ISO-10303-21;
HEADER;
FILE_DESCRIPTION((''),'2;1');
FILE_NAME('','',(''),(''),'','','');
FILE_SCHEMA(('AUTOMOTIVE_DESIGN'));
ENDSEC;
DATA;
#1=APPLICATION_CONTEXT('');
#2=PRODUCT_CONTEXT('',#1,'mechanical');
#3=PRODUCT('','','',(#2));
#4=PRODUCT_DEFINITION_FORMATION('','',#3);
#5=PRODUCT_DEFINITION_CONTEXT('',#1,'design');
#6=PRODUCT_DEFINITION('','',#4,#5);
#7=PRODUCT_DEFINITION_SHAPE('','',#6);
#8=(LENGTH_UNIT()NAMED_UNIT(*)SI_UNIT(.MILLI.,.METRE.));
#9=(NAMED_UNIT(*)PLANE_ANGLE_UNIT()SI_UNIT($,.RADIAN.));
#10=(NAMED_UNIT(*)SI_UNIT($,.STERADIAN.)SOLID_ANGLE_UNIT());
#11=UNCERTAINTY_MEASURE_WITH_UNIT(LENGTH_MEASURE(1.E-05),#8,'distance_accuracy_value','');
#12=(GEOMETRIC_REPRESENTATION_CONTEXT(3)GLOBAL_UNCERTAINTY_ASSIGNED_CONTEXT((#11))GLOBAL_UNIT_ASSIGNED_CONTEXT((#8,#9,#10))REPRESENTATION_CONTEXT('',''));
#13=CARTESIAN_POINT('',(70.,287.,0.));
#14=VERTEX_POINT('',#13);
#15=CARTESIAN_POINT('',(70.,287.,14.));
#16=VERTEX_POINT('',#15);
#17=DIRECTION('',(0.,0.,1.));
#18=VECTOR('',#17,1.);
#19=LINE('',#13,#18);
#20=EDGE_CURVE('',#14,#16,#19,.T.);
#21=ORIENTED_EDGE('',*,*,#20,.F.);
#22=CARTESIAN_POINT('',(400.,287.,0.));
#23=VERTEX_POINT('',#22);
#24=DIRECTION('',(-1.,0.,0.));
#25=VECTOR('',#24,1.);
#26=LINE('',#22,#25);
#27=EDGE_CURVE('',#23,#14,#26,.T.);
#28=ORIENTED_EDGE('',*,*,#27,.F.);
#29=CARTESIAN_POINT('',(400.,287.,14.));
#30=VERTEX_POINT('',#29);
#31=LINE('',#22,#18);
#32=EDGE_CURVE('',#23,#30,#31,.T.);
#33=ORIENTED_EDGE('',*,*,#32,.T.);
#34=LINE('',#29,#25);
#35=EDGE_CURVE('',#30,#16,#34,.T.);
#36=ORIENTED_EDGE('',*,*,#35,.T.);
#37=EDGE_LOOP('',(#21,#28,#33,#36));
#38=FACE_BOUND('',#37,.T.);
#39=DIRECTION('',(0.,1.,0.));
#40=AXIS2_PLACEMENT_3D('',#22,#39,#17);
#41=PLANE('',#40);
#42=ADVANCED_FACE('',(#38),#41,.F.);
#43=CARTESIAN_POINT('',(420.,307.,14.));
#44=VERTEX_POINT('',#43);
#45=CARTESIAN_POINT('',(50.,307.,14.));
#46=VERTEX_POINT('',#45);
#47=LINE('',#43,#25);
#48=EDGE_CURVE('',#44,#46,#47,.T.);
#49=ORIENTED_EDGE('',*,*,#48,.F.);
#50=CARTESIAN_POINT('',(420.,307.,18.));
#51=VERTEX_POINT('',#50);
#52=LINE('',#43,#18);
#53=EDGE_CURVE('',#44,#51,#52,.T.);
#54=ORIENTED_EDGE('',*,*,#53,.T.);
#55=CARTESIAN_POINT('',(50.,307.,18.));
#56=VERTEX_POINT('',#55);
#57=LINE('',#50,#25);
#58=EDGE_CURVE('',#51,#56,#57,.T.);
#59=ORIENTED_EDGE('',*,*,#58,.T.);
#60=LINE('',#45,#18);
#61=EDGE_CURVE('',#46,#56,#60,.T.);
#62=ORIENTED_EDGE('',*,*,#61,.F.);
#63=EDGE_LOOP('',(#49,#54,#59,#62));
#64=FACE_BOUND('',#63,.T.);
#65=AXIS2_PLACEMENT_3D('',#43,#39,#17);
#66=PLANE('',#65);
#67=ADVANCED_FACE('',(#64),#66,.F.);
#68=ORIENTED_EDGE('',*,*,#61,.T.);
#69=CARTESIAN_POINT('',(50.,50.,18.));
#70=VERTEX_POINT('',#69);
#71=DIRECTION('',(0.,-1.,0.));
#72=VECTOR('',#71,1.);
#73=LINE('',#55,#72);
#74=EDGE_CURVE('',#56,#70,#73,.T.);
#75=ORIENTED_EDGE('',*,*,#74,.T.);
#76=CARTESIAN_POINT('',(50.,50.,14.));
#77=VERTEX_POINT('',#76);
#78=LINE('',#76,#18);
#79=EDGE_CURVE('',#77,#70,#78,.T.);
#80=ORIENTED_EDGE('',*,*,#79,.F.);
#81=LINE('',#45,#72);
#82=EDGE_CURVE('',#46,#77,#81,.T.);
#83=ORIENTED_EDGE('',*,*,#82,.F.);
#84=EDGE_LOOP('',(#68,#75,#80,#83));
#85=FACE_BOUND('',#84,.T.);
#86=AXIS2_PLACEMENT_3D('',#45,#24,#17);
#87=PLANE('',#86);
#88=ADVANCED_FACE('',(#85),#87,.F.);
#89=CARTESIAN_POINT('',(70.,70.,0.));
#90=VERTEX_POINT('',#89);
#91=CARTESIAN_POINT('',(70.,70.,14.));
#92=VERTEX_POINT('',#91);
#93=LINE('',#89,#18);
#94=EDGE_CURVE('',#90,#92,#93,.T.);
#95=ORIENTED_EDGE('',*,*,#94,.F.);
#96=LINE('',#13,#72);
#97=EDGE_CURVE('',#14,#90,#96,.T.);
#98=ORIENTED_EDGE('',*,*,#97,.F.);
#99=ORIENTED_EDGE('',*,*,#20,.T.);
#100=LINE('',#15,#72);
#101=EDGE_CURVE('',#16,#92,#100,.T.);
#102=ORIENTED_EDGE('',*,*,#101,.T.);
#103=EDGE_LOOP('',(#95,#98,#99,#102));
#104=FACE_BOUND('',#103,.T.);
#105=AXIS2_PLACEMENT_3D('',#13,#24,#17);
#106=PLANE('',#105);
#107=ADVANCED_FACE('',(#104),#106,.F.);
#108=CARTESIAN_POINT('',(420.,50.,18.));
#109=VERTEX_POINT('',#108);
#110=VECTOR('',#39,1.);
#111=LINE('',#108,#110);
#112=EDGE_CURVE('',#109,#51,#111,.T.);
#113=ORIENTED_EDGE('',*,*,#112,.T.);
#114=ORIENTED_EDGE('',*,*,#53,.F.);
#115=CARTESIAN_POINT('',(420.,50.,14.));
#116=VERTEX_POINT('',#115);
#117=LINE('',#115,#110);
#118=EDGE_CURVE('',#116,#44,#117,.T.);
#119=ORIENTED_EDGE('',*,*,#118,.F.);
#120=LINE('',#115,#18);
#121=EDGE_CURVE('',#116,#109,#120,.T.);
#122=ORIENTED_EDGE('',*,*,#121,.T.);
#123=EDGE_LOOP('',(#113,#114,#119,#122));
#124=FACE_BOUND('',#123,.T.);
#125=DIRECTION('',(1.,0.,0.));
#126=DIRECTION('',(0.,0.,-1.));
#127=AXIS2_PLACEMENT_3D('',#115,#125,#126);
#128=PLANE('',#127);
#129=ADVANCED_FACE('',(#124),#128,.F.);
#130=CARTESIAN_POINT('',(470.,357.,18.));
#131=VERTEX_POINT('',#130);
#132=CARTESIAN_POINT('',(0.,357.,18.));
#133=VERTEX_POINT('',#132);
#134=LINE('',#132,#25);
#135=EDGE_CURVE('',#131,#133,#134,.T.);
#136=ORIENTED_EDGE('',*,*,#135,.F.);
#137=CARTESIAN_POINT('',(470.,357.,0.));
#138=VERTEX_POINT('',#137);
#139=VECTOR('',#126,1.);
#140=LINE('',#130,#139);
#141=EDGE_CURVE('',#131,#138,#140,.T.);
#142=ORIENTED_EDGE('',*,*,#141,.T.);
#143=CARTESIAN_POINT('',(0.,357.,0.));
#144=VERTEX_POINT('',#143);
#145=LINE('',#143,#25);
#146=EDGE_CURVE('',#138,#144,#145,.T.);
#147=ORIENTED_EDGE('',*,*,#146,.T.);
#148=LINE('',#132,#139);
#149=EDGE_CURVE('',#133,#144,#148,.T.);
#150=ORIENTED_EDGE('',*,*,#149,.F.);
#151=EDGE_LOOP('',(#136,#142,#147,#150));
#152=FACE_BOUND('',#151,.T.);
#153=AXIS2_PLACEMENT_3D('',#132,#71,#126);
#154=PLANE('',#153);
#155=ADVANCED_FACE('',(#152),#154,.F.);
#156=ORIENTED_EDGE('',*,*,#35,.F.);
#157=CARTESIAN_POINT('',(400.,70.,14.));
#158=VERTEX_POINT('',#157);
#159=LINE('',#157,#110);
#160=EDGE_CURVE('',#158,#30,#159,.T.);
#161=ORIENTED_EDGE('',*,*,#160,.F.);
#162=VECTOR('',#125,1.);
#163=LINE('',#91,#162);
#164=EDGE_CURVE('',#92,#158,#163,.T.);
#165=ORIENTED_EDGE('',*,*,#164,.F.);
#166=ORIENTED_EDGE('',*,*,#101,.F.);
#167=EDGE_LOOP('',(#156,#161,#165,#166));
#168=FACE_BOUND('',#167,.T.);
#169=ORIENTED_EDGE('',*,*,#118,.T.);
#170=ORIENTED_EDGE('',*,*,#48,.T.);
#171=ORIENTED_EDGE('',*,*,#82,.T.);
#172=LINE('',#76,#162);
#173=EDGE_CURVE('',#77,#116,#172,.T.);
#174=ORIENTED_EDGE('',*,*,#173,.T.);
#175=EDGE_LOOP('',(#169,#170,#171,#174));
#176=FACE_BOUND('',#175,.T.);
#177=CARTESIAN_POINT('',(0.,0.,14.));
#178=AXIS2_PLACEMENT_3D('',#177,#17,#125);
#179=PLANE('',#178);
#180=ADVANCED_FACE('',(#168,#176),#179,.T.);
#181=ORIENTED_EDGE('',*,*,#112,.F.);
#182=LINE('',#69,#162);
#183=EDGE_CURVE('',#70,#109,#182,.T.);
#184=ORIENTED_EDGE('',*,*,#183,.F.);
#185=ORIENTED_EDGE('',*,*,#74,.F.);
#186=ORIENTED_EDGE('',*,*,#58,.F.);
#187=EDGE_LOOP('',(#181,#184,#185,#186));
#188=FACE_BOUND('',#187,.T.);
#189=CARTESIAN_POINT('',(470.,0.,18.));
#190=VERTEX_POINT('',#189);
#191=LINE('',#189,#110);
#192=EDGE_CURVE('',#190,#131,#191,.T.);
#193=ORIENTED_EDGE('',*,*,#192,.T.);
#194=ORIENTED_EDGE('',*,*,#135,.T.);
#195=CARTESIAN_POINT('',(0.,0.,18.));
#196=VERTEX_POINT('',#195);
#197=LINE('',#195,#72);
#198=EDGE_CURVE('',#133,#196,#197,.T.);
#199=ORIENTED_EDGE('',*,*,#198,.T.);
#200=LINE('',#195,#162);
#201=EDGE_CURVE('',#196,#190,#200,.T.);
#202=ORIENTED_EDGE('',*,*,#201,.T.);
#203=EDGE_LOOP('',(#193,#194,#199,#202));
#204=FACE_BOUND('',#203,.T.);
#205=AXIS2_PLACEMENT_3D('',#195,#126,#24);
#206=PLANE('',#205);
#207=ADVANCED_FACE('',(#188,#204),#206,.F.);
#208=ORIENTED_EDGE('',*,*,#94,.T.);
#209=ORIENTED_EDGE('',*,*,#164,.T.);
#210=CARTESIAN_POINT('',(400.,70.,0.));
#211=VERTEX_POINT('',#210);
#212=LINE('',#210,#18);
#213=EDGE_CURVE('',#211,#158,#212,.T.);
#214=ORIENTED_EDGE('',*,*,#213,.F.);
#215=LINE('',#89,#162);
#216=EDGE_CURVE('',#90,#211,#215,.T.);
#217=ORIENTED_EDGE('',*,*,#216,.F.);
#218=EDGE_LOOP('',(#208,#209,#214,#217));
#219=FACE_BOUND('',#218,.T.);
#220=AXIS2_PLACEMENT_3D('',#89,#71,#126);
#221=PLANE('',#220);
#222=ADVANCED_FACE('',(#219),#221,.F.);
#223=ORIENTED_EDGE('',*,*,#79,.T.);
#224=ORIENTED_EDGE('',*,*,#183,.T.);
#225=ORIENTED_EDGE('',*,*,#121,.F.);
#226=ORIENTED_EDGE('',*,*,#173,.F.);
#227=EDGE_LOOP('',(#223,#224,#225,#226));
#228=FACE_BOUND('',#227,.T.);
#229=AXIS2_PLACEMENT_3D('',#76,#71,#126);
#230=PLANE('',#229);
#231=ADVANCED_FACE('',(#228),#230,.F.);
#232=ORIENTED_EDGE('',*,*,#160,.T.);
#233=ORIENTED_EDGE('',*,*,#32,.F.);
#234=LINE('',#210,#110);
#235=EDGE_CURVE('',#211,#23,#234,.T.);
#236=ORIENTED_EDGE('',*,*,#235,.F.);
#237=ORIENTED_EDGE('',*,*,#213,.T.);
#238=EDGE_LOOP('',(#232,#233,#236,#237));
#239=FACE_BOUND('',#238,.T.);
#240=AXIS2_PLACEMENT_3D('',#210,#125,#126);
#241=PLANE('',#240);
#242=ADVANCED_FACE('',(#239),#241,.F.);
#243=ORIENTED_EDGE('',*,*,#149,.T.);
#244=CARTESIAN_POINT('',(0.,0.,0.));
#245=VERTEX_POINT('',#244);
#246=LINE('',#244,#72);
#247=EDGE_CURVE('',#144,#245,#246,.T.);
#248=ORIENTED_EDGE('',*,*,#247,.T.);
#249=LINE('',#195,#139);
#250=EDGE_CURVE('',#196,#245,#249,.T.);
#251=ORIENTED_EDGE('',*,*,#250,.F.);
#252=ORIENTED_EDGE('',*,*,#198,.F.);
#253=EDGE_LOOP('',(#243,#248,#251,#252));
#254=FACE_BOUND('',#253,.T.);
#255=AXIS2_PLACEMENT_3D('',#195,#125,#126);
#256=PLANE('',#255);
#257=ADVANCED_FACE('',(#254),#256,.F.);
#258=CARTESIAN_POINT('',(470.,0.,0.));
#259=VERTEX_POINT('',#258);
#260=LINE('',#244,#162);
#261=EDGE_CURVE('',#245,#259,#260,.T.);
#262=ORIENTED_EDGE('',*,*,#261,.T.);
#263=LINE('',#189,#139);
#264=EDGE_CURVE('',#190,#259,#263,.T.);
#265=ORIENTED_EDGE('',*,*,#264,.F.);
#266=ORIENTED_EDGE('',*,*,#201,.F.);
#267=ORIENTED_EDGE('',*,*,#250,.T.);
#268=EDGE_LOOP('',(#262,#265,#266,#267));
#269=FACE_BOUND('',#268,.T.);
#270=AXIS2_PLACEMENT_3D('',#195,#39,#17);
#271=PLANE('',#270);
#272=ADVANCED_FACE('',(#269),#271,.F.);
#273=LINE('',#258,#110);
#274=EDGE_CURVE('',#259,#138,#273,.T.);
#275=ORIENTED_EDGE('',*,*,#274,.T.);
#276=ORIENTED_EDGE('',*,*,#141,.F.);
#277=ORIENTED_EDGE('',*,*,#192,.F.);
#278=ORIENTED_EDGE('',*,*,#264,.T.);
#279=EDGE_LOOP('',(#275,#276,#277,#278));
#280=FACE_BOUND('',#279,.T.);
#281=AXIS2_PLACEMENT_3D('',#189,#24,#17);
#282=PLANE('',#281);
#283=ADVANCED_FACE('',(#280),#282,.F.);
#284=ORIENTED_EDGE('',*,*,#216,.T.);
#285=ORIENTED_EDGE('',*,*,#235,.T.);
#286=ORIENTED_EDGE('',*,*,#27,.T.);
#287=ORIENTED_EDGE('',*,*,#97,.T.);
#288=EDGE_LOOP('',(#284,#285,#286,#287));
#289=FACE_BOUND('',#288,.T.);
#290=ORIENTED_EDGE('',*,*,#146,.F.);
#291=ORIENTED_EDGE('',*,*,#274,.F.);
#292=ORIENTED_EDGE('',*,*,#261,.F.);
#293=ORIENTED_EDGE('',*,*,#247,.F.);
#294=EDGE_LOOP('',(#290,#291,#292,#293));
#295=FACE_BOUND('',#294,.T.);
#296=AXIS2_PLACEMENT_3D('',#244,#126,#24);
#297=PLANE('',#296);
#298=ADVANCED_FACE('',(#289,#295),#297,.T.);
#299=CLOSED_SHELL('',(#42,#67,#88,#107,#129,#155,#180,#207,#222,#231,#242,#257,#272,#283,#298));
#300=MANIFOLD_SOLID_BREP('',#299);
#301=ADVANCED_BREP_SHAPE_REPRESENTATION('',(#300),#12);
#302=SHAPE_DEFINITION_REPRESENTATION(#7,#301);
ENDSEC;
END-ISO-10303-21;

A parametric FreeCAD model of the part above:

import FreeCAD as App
import Part
import Sketcher

V = App.Vector
Q = App.Units.Quantity

doc = App.newDocument("Part")
body = doc.addObject("PartDesign::Body", "Body")

sketch1 = body.newObject("Sketcher::SketchObject", "Sketch")
sketch1.AttachmentSupport = (doc.getObject("XY_Plane"), [""])
sketch1.MapMode = "FlatFace"
sketch1.addGeometry([
    Part.LineSegment(V(0, 357, 0), V(0, 0, 0)),
    Part.LineSegment(V(0, 0, 0), V(470, 0, 0)),
    Part.LineSegment(V(470, 0, 0), V(470, 357, 0)),
    Part.LineSegment(V(470, 357, 0), V(0, 357, 0)),
], False)
sketch1.addConstraint([
    Sketcher.Constraint("Coincident", 0, 2, 1, 1),
    Sketcher.Constraint("Coincident", 1, 2, 2, 1),
    Sketcher.Constraint("Coincident", 2, 2, 3, 1),
    Sketcher.Constraint("Coincident", 3, 2, 0, 1),
    Sketcher.Constraint("Vertical", 0),
    Sketcher.Constraint("Horizontal", 1),
    Sketcher.Constraint("Vertical", 2),
    Sketcher.Constraint("Horizontal", 3),
    Sketcher.Constraint("Coincident", 0, 2, -1, 1),
    Sketcher.Constraint("DistanceX", 1, 1, 1, 2, Q("470 mm")),
    Sketcher.Constraint("DistanceY", 0, 2, 0, 1, Q("357 mm")),
])
pad1 = body.newObject("PartDesign::Pad", "Pad")
pad1.Profile = sketch1
pad1.Length = 18

sketch2 = body.newObject("Sketcher::SketchObject", "Sketch001")
sketch2.AttachmentSupport = (doc.getObject("XY_Plane"), [""])
sketch2.MapMode = "FlatFace"
sketch2.AttachmentOffset = App.Placement(V(0, 0, 18), App.Rotation())
sketch2.addGeometry([
    Part.LineSegment(V(50, 307, 0), V(50, 50, 0)),
    Part.LineSegment(V(50, 50, 0), V(420, 50, 0)),
    Part.LineSegment(V(420, 50, 0), V(420, 307, 0)),
    Part.LineSegment(V(420, 307, 0), V(50, 307, 0)),
], False)
sketch2.addConstraint([
    Sketcher.Constraint("Coincident", 0, 2, 1, 1),
    Sketcher.Constraint("Coincident", 1, 2, 2, 1),
    Sketcher.Constraint("Coincident", 2, 2, 3, 1),
    Sketcher.Constraint("Coincident", 3, 2, 0, 1),
    Sketcher.Constraint("Vertical", 0),
    Sketcher.Constraint("Horizontal", 1),
    Sketcher.Constraint("Vertical", 2),
    Sketcher.Constraint("Horizontal", 3),
    Sketcher.Constraint("DistanceX", 1, 1, 1, 2, Q("370 mm")),
    Sketcher.Constraint("DistanceY", 0, 2, 0, 1, Q("257 mm")),
    Sketcher.Constraint("DistanceX", -1, 1, 0, 2, Q("50 mm")),
    Sketcher.Constraint("DistanceY", -1, 1, 0, 2, Q("50 mm")),
])
pocket1 = body.newObject("PartDesign::Pocket", "Pocket")
pocket1.Profile = sketch2
pocket1.Length = 4

sketch3 = body.newObject("Sketcher::SketchObject", "Sketch002")
sketch3.AttachmentSupport = (doc.getObject("XY_Plane"), [""])
sketch3.MapMode = "FlatFace"
sketch3.AttachmentOffset = App.Placement(V(0, 0, 14), App.Rotation())
sketch3.addGeometry([
    Part.LineSegment(V(70, 287, 0), V(70, 70, 0)),
    Part.LineSegment(V(70, 70, 0), V(400, 70, 0)),
    Part.LineSegment(V(400, 70, 0), V(400, 287, 0)),
    Part.LineSegment(V(400, 287, 0), V(70, 287, 0)),
], False)
sketch3.addConstraint([
    Sketcher.Constraint("Coincident", 0, 2, 1, 1),
    Sketcher.Constraint("Coincident", 1, 2, 2, 1),
    Sketcher.Constraint("Coincident", 2, 2, 3, 1),
    Sketcher.Constraint("Coincident", 3, 2, 0, 1),
    Sketcher.Constraint("Vertical", 0),
    Sketcher.Constraint("Horizontal", 1),
    Sketcher.Constraint("Vertical", 2),
    Sketcher.Constraint("Horizontal", 3),
    Sketcher.Constraint("DistanceX", 1, 1, 1, 2, Q("330 mm")),
    Sketcher.Constraint("DistanceY", 0, 2, 0, 1, Q("217 mm")),
    Sketcher.Constraint("DistanceX", -1, 1, 0, 2, Q("70 mm")),
    Sketcher.Constraint("DistanceY", -1, 1, 0, 2, Q("70 mm")),
])
pocket2 = body.newObject("PartDesign::Pocket", "Pocket001")
pocket2.Profile = sketch3
pocket2.Type = "ThroughAll"

doc.recompute()
